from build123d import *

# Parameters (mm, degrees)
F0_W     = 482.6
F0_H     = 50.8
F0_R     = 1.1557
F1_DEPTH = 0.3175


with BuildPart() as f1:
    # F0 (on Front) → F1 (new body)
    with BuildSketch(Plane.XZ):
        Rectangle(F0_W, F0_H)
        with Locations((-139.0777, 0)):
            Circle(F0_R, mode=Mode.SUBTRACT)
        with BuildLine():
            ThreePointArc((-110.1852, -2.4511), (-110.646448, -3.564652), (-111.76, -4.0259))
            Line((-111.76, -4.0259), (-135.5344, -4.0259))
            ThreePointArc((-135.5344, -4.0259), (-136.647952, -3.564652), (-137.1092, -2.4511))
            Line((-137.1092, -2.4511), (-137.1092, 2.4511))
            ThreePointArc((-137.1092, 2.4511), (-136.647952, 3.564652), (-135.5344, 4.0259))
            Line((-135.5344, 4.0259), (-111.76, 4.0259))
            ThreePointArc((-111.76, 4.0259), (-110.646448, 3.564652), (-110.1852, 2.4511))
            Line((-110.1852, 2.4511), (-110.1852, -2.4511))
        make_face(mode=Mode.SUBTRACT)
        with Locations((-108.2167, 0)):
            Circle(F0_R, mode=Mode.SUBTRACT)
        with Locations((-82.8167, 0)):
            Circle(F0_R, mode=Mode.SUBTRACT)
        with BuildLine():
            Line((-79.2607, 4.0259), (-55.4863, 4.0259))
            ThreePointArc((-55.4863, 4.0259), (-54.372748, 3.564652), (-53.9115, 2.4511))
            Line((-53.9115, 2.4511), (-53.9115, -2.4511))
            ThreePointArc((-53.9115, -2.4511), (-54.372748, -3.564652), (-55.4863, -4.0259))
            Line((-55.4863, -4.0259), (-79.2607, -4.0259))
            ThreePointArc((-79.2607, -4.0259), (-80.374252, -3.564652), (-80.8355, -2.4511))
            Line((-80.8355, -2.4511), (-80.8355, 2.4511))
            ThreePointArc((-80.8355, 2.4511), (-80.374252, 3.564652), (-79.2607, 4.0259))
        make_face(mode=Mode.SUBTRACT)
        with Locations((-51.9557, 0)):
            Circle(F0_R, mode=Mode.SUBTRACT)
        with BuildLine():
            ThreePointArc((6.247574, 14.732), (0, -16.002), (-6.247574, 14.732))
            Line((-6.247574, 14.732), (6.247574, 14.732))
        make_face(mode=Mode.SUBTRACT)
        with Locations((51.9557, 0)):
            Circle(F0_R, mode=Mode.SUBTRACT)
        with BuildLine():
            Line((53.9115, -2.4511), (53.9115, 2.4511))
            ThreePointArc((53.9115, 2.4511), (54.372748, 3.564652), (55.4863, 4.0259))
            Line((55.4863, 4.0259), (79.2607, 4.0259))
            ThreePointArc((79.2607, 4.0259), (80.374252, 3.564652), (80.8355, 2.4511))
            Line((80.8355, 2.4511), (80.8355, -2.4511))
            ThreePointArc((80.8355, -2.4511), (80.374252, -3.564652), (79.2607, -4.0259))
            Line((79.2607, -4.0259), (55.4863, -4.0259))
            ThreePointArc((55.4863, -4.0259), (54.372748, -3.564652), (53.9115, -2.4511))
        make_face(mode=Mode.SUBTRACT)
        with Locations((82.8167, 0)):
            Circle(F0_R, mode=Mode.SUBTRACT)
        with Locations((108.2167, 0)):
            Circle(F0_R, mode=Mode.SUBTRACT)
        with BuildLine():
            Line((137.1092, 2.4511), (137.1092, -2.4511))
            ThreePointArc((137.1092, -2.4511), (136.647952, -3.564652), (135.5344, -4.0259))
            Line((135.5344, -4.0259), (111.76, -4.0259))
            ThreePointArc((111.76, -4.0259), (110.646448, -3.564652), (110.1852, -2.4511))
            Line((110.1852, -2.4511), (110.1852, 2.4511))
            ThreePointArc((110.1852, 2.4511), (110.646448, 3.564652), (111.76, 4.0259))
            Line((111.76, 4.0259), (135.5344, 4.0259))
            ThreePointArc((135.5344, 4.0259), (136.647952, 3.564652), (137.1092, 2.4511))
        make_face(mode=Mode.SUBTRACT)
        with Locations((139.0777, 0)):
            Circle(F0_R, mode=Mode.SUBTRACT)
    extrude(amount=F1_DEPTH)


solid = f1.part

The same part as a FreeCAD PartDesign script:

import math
import FreeCAD as App
import Part
import Sketcher
Q = App.Units.Quantity


def add_polygon(sketch, points):
    """Adds a closed chain of lines whose ends are joined by coincident constraints."""
    first, n = sketch.GeometryCount, len(points)
    for a, b in zip(points, points[1:] + points[:1]):
        sketch.addGeometry(Part.LineSegment(App.Vector(*a, 0), App.Vector(*b, 0)), False)
    for i in range(n):
        sketch.addConstraint(Sketcher.Constraint("Coincident", first + i, 2, first + (i + 1) % n, 1))

doc = App.newDocument("Part")
body = doc.addObject("PartDesign::Body", "Body")

# Sketch on XZ plane
sketch1 = body.newObject("Sketcher::SketchObject", "Sketch")
sketch1.AttachmentSupport = (doc.getObject("XZ_Plane"), [""])
sketch1.MapMode = "FlatFace"
add_polygon(sketch1, [(-241.3, 25.4), (-241.3, -25.4), (241.3, -25.4), (241.3, 25.4)])  # lines 0-3
sketch1.addGeometry(Part.Circle(App.Vector(-139.1, 0, 0), App.Vector(0, 0, 1), 1.2), False)  # 4
sketch1.addGeometry(Part.LineSegment(App.Vector(-110.2, 2.5, 0), App.Vector(-110.2, -2.5, 0)), False)  # 5
sketch1.addGeometry(Part.ArcOfCircle(Part.Circle(App.Vector(-111.8, -2.5, 0), App.Vector(0, 0, 1), 1.6), math.radians(-90), math.radians(0)), False)  # 6
sketch1.addGeometry(Part.LineSegment(App.Vector(-111.8, -4, 0), App.Vector(-135.5, -4, 0)), False)  # 7
sketch1.addGeometry(Part.ArcOfCircle(Part.Circle(App.Vector(-135.5, -2.5, 0), App.Vector(0, 0, 1), 1.6), math.radians(180), math.radians(270)), False)  # 8
sketch1.addGeometry(Part.LineSegment(App.Vector(-137.1, -2.5, 0), App.Vector(-137.1, 2.5, 0)), False)  # 9
sketch1.addGeometry(Part.ArcOfCircle(Part.Circle(App.Vector(-135.5, 2.5, 0), App.Vector(0, 0, 1), 1.6), math.radians(90), math.radians(180)), False)  # 10
sketch1.addGeometry(Part.LineSegment(App.Vector(-135.5, 4, 0), App.Vector(-111.8, 4, 0)), False)  # 11
sketch1.addGeometry(Part.ArcOfCircle(Part.Circle(App.Vector(-111.8, 2.5, 0), App.Vector(0, 0, 1), 1.6), math.radians(0), math.radians(90)), False)  # 12
sketch1.addGeometry(Part.Circle(App.Vector(-108.2, 0, 0), App.Vector(0, 0, 1), 1.2), False)  # 13
sketch1.addGeometry(Part.Circle(App.Vector(-82.8, 0, 0), App.Vector(0, 0, 1), 1.2), False)  # 14
sketch1.addGeometry(Part.ArcOfCircle(Part.Circle(App.Vector(-79.3, 2.5, 0), App.Vector(0, 0, 1), 1.6), math.radians(90), math.radians(180)), False)  # 15
sketch1.addGeometry(Part.LineSegment(App.Vector(-79.3, 4, 0), App.Vector(-55.5, 4, 0)), False)  # 16
sketch1.addGeometry(Part.ArcOfCircle(Part.Circle(App.Vector(-55.5, 2.5, 0), App.Vector(0, 0, 1), 1.6), math.radians(0), math.radians(90)), False)  # 17
sketch1.addGeometry(Part.LineSegment(App.Vector(-53.9, 2.5, 0), App.Vector(-53.9, -2.5, 0)), False)  # 18
sketch1.addGeometry(Part.ArcOfCircle(Part.Circle(App.Vector(-55.5, -2.5, 0), App.Vector(0, 0, 1), 1.6), math.radians(-90), math.radians(0)), False)  # 19
sketch1.addGeometry(Part.LineSegment(App.Vector(-55.5, -4, 0), App.Vector(-79.3, -4, 0)), False)  # 20
sketch1.addGeometry(Part.ArcOfCircle(Part.Circle(App.Vector(-79.3, -2.5, 0), App.Vector(0, 0, 1), 1.6), math.radians(180), math.radians(270)), False)  # 21
sketch1.addGeometry(Part.LineSegment(App.Vector(-80.8, -2.5, 0), App.Vector(-80.8, 2.5, 0)), False)  # 22
sketch1.addGeometry(Part.Circle(App.Vector(-52, 0, 0), App.Vector(0, 0, 1), 1.2), False)  # 23
sketch1.addGeometry(Part.LineSegment(App.Vector(-6.2, 14.7, 0), App.Vector(6.2, 14.7, 0)), False)  # 24
sketch1.addGeometry(Part.ArcOfCircle(Part.Circle(App.Vector(0, 0, 0), App.Vector(0, 0, 1), 16), math.radians(113), math.radians(427)), False)  # 25
sketch1.addGeometry(Part.Circle(App.Vector(52, 0, 0), App.Vector(0, 0, 1), 1.2), False)  # 26
sketch1.addGeometry(Part.ArcOfCircle(Part.Circle(App.Vector(55.5, -2.5, 0), App.Vector(0, 0, 1), 1.6), math.radians(180), math.radians(270)), False)  # 27
sketch1.addGeometry(Part.LineSegment(App.Vector(53.9, -2.5, 0), App.Vector(53.9, 2.5, 0)), False)  # 28
sketch1.addGeometry(Part.ArcOfCircle(Part.Circle(App.Vector(55.5, 2.5, 0), App.Vector(0, 0, 1), 1.6), math.radians(90), math.radians(180)), False)  # 29
sketch1.addGeometry(Part.LineSegment(App.Vector(55.5, 4, 0), App.Vector(79.3, 4, 0)), False)  # 30
sketch1.addGeometry(Part.ArcOfCircle(Part.Circle(App.Vector(79.3, 2.5, 0), App.Vector(0, 0, 1), 1.6), math.radians(0), math.radians(90)), False)  # 31
sketch1.addGeometry(Part.LineSegment(App.Vector(80.8, 2.5, 0), App.Vector(80.8, -2.5, 0)), False)  # 32
sketch1.addGeometry(Part.ArcOfCircle(Part.Circle(App.Vector(79.3, -2.5, 0), App.Vector(0, 0, 1), 1.6), math.radians(-90), math.radians(0)), False)  # 33
sketch1.addGeometry(Part.LineSegment(App.Vector(79.3, -4, 0), App.Vector(55.5, -4, 0)), False)  # 34
sketch1.addGeometry(Part.Circle(App.Vector(82.8, 0, 0), App.Vector(0, 0, 1), 1.2), False)  # 35
sketch1.addGeometry(Part.Circle(App.Vector(108.2, 0, 0), App.Vector(0, 0, 1), 1.2), False)  # 36
sketch1.addGeometry(Part.ArcOfCircle(Part.Circle(App.Vector(135.5, 2.5, 0), App.Vector(0, 0, 1), 1.6), math.radians(0), math.radians(90)), False)  # 37
sketch1.addGeometry(Part.LineSegment(App.Vector(137.1, 2.5, 0), App.Vector(137.1, -2.5, 0)), False)  # 38
sketch1.addGeometry(Part.ArcOfCircle(Part.Circle(App.Vector(135.5, -2.5, 0), App.Vector(0, 0, 1), 1.6), math.radians(-90), math.radians(0)), False)  # 39
sketch1.addGeometry(Part.LineSegment(App.Vector(135.5, -4, 0), App.Vector(111.8, -4, 0)), False)  # 40
sketch1.addGeometry(Part.ArcOfCircle(Part.Circle(App.Vector(111.8, -2.5, 0), App.Vector(0, 0, 1), 1.6), math.radians(180), math.radians(270)), False)  # 41
sketch1.addGeometry(Part.LineSegment(App.Vector(110.2, -2.5, 0), App.Vector(110.2, 2.5, 0)), False)  # 42
sketch1.addGeometry(Part.ArcOfCircle(Part.Circle(App.Vector(111.8, 2.5, 0), App.Vector(0, 0, 1), 1.6), math.radians(90), math.radians(180)), False)  # 43
sketch1.addGeometry(Part.LineSegment(App.Vector(111.8, 4, 0), App.Vector(135.5, 4, 0)), False)  # 44
sketch1.addGeometry(Part.Circle(App.Vector(139.1, 0, 0), App.Vector(0, 0, 1), 1.2), False)  # 45
sketch1.addConstraint(Sketcher.Constraint("Tangent", 5, 2, 6, 2))
sketch1.addConstraint(Sketcher.Constraint("Tangent", 6, 1, 7, 1))
sketch1.addConstraint(Sketcher.Constraint("Tangent", 7, 2, 8, 2))
sketch1.addConstraint(Sketcher.Constraint("Tangent", 8, 1, 9, 1))
sketch1.addConstraint(Sketcher.Constraint("Tangent", 9, 2, 10, 2))
sketch1.addConstraint(Sketcher.Constraint("Tangent", 10, 1, 11, 1))
sketch1.addConstraint(Sketcher.Constraint("Tangent", 11, 2, 12, 2))
sketch1.addConstraint(Sketcher.Constraint("Tangent", 12, 1, 5, 1))
sketch1.addConstraint(Sketcher.Constraint("Tangent", 15, 1, 16, 1))
sketch1.addConstraint(Sketcher.Constraint("Tangent", 16, 2, 17, 2))
sketch1.addConstraint(Sketcher.Constraint("Tangent", 17, 1, 18, 1))
sketch1.addConstraint(Sketcher.Constraint("Tangent", 18, 2, 19, 2))
sketch1.addConstraint(Sketcher.Constraint("Tangent", 19, 1, 20, 1))
sketch1.addConstraint(Sketcher.Constraint("Tangent", 20, 2, 21, 2))
sketch1.addConstraint(Sketcher.Constraint("Tangent", 21, 1, 22, 1))
sketch1.addConstraint(Sketcher.Constraint("Tangent", 22, 2, 15, 2))
sketch1.addConstraint(Sketcher.Constraint("Coincident", 24, 1, 25, 1))
sketch1.addConstraint(Sketcher.Constraint("Coincident", 25, 2, 24, 2))
sketch1.addConstraint(Sketcher.Constraint("Tangent", 27, 1, 28, 1))
sketch1.addConstraint(Sketcher.Constraint("Tangent", 28, 2, 29, 2))
sketch1.addConstraint(Sketcher.Constraint("Tangent", 29, 1, 30, 1))
sketch1.addConstraint(Sketcher.Constraint("Tangent", 30, 2, 31, 2))
sketch1.addConstraint(Sketcher.Constraint("Tangent", 31, 1, 32, 1))
sketch1.addConstraint(Sketcher.Constraint("Tangent", 32, 2, 33, 2))
sketch1.addConstraint(Sketcher.Constraint("Tangent", 33, 1, 34, 1))
sketch1.addConstraint(Sketcher.Constraint("Tangent", 34, 2, 27, 2))
sketch1.addConstraint(Sketcher.Constraint("Tangent", 37, 1, 38, 1))
sketch1.addConstraint(Sketcher.Constraint("Tangent", 38, 2, 39, 2))
sketch1.addConstraint(Sketcher.Constraint("Tangent", 39, 1, 40, 1))
sketch1.addConstraint(Sketcher.Constraint("Tangent", 40, 2, 41, 2))
sketch1.addConstraint(Sketcher.Constraint("Tangent", 41, 1, 42, 1))
sketch1.addConstraint(Sketcher.Constraint("Tangent", 42, 2, 43, 2))
sketch1.addConstraint(Sketcher.Constraint("Tangent", 43, 1, 44, 1))
sketch1.addConstraint(Sketcher.Constraint("Tangent", 44, 2, 37, 2))
sketch1.addConstraint(Sketcher.Constraint("Vertical", 0))
sketch1.addConstraint(Sketcher.Constraint("Horizontal", 1))
sketch1.addConstraint(Sketcher.Constraint("Vertical", 2))
sketch1.addConstraint(Sketcher.Constraint("Horizontal", 3))
sketch1.addConstraint(Sketcher.Constraint("Vertical", 5))
sketch1.addConstraint(Sketcher.Constraint("Horizontal", 7))
sketch1.addConstraint(Sketcher.Constraint("Vertical", 9))
sketch1.addConstraint(Sketcher.Constraint("Horizontal", 11))
sketch1.addConstraint(Sketcher.Constraint("Horizontal", 16))
sketch1.addConstraint(Sketcher.Constraint("Vertical", 18))
sketch1.addConstraint(Sketcher.Constraint("Horizontal", 20))
sketch1.addConstraint(Sketcher.Constraint("Vertical", 22))
sketch1.addConstraint(Sketcher.Constraint("Horizontal", 24))
sketch1.addConstraint(Sketcher.Constraint("Vertical", 28))
sketch1.addConstraint(Sketcher.Constraint("Horizontal", 30))
sketch1.addConstraint(Sketcher.Constraint("Vertical", 32))
sketch1.addConstraint(Sketcher.Constraint("Horizontal", 34))
sketch1.addConstraint(Sketcher.Constraint("Vertical", 38))
sketch1.addConstraint(Sketcher.Constraint("Horizontal", 40))
sketch1.addConstraint(Sketcher.Constraint("Vertical", 42))
sketch1.addConstraint(Sketcher.Constraint("Horizontal", 44))
sketch1.addConstraint(Sketcher.Constraint("Coincident", 25, 3, -1, 1))
sketch1.addConstraint(Sketcher.Constraint("Equal", 6, 8))
sketch1.addConstraint(Sketcher.Constraint("Equal", 8, 10))
sketch1.addConstraint(Sketcher.Constraint("Equal", 10, 12))
sketch1.addConstraint(Sketcher.Constraint("Equal", 4, 13))
sketch1.addConstraint(Sketcher.Constraint("Equal", 13, 14))
sketch1.addConstraint(Sketcher.Constraint("Equal", 12, 15))
sketch1.addConstraint(Sketcher.Constraint("Equal", 15, 17))
sketch1.addConstraint(Sketcher.Constraint("Equal", 17, 19))
sketch1.addConstraint(Sketcher.Constraint("Equal", 19, 21))
sketch1.addConstraint(Sketcher.Constraint("Equal", 14, 23))
sketch1.addConstraint(Sketcher.Constraint("Equal", 23, 26))
sketch1.addConstraint(Sketcher.Constraint("Equal", 21, 27))
sketch1.addConstraint(Sketcher.Constraint("Equal", 27, 29))
sketch1.addConstraint(Sketcher.Constraint("Equal", 29, 31))
sketch1.addConstraint(Sketcher.Constraint("Equal", 31, 33))
sketch1.addConstraint(Sketcher.Constraint("Equal", 26, 35))
sketch1.addConstraint(Sketcher.Constraint("Equal", 35, 36))
sketch1.addConstraint(Sketcher.Constraint("Equal", 33, 37))
sketch1.addConstraint(Sketcher.Constraint("Equal", 37, 39))
sketch1.addConstraint(Sketcher.Constraint("Equal", 39, 41))
sketch1.addConstraint(Sketcher.Constraint("Equal", 41, 43))
sketch1.addConstraint(Sketcher.Constraint("Equal", 36, 45))
sketch1.addConstraint(Sketcher.Constraint("Symmetric", 23, 3, 26, 3, -1, 1))
sketch1.addConstraint(Sketcher.Constraint("Symmetric", 17, 3, 27, 3, -1, 1))
sketch1.addConstraint(Sketcher.Constraint("Symmetric", 21, 3, 31, 3, -1, 1))
sketch1.addConstraint(Sketcher.Constraint("Symmetric", 14, 3, 35, 3, -1, 1))
sketch1.addConstraint(Sketcher.Constraint("Symmetric", 13, 3, 36, 3, -1, 1))
sketch1.addConstraint(Sketcher.Constraint("Symmetric", 8, 3, 37, 3, -1, 1))
sketch1.addConstraint(Sketcher.Constraint("Symmetric", 12, 3, 41, 3, -1, 1))
sketch1.addConstraint(Sketcher.Constraint("Symmetric", 4, 3, 45, 3, -1, 1))
sketch1.addConstraint(Sketcher.Constraint("Symmetric", 0, 2, 2, 2, -1, 1))
sketch1.addConstraint(Sketcher.Constraint("PointOnObject", 4, 3, -1))
sketch1.addConstraint(Sketcher.Constraint("PointOnObject", 13, 3, -1))
sketch1.addConstraint(Sketcher.Constraint("PointOnObject", 14, 3, -1))
sketch1.addConstraint(Sketcher.Constraint("PointOnObject", 23, 3, -1))
sketch1.addConstraint(Sketcher.Constraint("Horizontal", 12, 3, 15, 3))
sketch1.addConstraint(Sketcher.Constraint("Horizontal", 8, 3, 19, 3))
sketch1.addConstraint(Sketcher.Constraint("Horizontal", 21, 3, 27, 3))
sketch1.addConstraint(Sketcher.Constraint("Equal", 11, 16))
sketch1.addConstraint(Sketcher.Constraint("DistanceX", 1, 1, 1, 2, Q("19 in")))
sketch1.addConstraint(Sketcher.Constraint("DistanceY", 0, 2, 0, 1, Q("2 in")))
sketch1.addConstraint(Sketcher.Constraint("Radius", 25, Q("0.63 in")))
sketch1.addConstraint(Sketcher.Constraint("Diameter", 4, Q("0.091 in")))
sketch1.addConstraint(Sketcher.Constraint("Radius", 6, Q("0.062 in")))
sketch1.addConstraint(Sketcher.Constraint("DistanceX", 6, 3, -1, 1, Q("4.4 in")))
sketch1.addConstraint(Sketcher.Constraint("DistanceX", 7, 2, 7, 1, Q("0.936 in")))
sketch1.addConstraint(Sketcher.Constraint("DistanceY", 5, 2, 5, 1, Q("0.193 in")))
sketch1.addConstraint(Sketcher.Constraint("DistanceY", -1, 1, 24, 1, Q("0.58 in")))
sketch1.addConstraint(Sketcher.Constraint("DistanceX", 4, 3, -1, 1, Q("5.4755 in")))
sketch1.addConstraint(Sketcher.Constraint("DistanceX", 13, 3, -1, 1, Q("4.2605 in")))
sketch1.addConstraint(Sketcher.Constraint("DistanceX", 14, 3, -1, 1, Q("3.2605 in")))
sketch1.addConstraint(Sketcher.Constraint("DistanceX", 15, 3, -1, 1, Q("3.1205 in")))
sketch1.addConstraint(Sketcher.Constraint("DistanceX", 23, 3, -1, 1, Q("2.0455 in")))
pad1 = body.newObject("PartDesign::Pad", "Pad")
pad1.Profile = sketch1
pad1.Length = Q("0.0125 in")

doc.recompute()
